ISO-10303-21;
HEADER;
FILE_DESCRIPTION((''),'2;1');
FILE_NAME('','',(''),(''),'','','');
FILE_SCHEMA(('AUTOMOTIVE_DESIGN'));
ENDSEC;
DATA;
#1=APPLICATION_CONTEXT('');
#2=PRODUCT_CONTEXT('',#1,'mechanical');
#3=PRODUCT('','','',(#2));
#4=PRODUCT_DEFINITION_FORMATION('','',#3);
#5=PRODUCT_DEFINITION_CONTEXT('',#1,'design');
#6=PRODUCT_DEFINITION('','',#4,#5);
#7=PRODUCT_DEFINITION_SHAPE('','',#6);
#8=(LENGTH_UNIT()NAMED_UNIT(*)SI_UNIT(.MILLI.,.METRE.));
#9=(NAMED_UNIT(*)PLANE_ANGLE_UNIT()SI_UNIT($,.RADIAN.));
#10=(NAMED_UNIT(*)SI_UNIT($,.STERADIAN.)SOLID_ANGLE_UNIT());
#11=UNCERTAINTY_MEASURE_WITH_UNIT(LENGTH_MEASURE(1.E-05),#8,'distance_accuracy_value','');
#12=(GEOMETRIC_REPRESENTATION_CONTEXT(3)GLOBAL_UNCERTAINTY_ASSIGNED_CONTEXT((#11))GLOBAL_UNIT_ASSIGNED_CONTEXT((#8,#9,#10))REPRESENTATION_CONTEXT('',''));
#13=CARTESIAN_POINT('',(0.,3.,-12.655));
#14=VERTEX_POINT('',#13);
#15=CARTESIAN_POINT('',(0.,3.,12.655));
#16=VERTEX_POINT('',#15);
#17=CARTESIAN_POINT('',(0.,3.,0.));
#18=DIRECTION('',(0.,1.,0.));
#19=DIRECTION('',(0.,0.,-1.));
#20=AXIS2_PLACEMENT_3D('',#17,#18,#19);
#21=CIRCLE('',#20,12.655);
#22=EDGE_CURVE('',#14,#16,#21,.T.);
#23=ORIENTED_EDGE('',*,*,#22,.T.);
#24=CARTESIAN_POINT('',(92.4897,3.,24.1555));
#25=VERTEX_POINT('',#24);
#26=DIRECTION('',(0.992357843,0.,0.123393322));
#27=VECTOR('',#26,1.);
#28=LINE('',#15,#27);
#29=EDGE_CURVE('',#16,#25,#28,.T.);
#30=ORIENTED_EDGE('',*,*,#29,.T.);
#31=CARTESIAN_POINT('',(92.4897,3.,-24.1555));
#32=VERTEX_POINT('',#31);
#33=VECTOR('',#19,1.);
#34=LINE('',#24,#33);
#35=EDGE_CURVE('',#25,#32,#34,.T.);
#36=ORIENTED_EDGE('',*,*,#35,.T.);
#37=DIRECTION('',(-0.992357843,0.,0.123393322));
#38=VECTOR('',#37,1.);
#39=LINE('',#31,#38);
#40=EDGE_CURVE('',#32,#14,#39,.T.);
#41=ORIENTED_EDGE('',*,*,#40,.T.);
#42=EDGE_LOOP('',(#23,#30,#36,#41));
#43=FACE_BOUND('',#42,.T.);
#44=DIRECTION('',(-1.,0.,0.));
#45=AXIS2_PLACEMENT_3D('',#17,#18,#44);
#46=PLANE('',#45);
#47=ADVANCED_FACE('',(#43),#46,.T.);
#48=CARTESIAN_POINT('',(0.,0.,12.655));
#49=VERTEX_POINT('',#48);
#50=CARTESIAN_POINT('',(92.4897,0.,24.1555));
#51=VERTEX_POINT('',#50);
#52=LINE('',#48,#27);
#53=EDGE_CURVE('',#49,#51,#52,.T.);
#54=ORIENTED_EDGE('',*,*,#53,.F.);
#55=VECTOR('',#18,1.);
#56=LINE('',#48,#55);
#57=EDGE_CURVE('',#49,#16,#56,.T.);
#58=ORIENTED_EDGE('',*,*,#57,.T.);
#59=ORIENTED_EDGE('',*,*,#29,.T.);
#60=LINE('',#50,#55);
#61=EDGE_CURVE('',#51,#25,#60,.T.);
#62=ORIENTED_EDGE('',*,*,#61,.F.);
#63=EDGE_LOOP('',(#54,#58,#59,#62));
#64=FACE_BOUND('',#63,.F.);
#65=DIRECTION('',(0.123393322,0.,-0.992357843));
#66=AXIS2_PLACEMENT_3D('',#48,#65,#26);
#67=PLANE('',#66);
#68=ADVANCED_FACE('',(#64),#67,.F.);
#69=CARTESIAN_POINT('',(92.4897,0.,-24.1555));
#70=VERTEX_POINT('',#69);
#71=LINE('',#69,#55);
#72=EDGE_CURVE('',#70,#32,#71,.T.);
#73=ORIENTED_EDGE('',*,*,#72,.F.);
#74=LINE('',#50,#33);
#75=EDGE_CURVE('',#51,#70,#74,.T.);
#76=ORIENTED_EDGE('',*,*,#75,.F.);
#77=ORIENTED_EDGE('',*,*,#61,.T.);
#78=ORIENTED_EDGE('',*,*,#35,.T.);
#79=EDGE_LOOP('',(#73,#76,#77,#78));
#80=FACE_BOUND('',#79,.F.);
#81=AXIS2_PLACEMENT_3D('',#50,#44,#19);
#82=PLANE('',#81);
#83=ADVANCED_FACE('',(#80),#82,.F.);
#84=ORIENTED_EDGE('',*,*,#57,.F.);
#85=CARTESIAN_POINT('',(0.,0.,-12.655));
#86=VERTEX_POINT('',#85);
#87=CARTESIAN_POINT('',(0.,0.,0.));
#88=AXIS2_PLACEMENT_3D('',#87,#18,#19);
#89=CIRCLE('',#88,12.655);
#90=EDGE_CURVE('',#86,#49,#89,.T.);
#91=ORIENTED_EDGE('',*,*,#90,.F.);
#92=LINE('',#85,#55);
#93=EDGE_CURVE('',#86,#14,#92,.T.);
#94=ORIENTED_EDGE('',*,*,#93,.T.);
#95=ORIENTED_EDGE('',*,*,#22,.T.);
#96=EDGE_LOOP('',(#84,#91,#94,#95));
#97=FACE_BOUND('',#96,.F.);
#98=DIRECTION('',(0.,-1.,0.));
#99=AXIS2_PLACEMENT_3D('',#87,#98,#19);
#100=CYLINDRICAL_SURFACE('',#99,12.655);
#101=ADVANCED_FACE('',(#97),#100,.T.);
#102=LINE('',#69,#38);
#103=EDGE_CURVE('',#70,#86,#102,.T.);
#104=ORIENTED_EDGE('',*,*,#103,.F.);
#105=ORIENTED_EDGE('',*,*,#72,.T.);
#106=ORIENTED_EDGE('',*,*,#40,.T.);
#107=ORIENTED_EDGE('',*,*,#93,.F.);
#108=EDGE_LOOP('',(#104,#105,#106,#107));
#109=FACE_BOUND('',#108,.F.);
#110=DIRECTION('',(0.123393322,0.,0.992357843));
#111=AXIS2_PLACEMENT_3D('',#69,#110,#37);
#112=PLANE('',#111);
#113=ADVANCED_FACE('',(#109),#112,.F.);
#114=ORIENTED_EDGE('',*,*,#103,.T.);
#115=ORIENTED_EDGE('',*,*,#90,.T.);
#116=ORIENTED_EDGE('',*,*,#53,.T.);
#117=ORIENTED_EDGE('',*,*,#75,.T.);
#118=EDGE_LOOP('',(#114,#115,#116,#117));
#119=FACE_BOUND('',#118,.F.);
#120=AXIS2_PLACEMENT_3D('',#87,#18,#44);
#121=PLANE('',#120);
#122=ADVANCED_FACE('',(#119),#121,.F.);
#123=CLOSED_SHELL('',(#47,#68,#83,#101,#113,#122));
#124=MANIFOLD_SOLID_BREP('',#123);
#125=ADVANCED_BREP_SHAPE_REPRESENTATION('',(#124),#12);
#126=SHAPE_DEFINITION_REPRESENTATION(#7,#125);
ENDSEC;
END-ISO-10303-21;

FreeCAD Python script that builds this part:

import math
import FreeCAD as App
import Part
import Sketcher
from FreeCAD import Vector
Q = App.Units.Quantity

doc = App.newDocument("Part")
body = doc.addObject("PartDesign::Body", "Body")

sketch1 = doc.addObject("Sketcher::SketchObject", "Sketch")
body.addObject(sketch1)
sketch1.AttachmentSupport = (doc.XZ_Plane, [""])
sketch1.MapMode = "FlatFace"
sketch1.addGeometry(Part.ArcOfCircle(Part.Circle(Vector(0, 0, 0), Vector(0, 0, 1), 13), math.radians(90), math.radians(270)), False)
sketch1.addGeometry(Part.LineSegment(Vector(0, 13, 0), Vector(92, 24, 0)), False)
sketch1.addGeometry(Part.LineSegment(Vector(92, 24, 0), Vector(92, -24, 0)), False)
sketch1.addGeometry(Part.LineSegment(Vector(92, -24, 0), Vector(0, -13, 0)), False)
sketch1.addConstraint(Sketcher.Constraint("Coincident", 0, 1, 1, 1))
sketch1.addConstraint(Sketcher.Constraint("Coincident", 1, 2, 2, 1))
sketch1.addConstraint(Sketcher.Constraint("Coincident", 2, 2, 3, 1))
sketch1.addConstraint(Sketcher.Constraint("Coincident", 3, 2, 0, 2))
sketch1.addConstraint(Sketcher.Constraint("Vertical", 2))
sketch1.addConstraint(Sketcher.Constraint("Coincident", 0, 3, -1, 1))
sketch1.addConstraint(Sketcher.Constraint("PointOnObject", 0, 1, -2))
sketch1.addConstraint(Sketcher.Constraint("PointOnObject", 3, 2, -2))
sketch1.addConstraint(Sketcher.Constraint("Equal", 1, 3))
sketch1.addConstraint(Sketcher.Constraint("DistanceY", 2, 2, 2, 1, Q("1.902 in")))
sketch1.addConstraint(Sketcher.Constraint("Radius", 0, 12.655))
sketch1.addConstraint(Sketcher.Constraint("Distance", 1, 93.202))
pad1 = doc.addObject("PartDesign::Pad", "Pad")
body.addObject(pad1)
pad1.Profile = sketch1
pad1.Length = Q("0.1181102 in")
pad1.Reversed = True

doc.recompute()
